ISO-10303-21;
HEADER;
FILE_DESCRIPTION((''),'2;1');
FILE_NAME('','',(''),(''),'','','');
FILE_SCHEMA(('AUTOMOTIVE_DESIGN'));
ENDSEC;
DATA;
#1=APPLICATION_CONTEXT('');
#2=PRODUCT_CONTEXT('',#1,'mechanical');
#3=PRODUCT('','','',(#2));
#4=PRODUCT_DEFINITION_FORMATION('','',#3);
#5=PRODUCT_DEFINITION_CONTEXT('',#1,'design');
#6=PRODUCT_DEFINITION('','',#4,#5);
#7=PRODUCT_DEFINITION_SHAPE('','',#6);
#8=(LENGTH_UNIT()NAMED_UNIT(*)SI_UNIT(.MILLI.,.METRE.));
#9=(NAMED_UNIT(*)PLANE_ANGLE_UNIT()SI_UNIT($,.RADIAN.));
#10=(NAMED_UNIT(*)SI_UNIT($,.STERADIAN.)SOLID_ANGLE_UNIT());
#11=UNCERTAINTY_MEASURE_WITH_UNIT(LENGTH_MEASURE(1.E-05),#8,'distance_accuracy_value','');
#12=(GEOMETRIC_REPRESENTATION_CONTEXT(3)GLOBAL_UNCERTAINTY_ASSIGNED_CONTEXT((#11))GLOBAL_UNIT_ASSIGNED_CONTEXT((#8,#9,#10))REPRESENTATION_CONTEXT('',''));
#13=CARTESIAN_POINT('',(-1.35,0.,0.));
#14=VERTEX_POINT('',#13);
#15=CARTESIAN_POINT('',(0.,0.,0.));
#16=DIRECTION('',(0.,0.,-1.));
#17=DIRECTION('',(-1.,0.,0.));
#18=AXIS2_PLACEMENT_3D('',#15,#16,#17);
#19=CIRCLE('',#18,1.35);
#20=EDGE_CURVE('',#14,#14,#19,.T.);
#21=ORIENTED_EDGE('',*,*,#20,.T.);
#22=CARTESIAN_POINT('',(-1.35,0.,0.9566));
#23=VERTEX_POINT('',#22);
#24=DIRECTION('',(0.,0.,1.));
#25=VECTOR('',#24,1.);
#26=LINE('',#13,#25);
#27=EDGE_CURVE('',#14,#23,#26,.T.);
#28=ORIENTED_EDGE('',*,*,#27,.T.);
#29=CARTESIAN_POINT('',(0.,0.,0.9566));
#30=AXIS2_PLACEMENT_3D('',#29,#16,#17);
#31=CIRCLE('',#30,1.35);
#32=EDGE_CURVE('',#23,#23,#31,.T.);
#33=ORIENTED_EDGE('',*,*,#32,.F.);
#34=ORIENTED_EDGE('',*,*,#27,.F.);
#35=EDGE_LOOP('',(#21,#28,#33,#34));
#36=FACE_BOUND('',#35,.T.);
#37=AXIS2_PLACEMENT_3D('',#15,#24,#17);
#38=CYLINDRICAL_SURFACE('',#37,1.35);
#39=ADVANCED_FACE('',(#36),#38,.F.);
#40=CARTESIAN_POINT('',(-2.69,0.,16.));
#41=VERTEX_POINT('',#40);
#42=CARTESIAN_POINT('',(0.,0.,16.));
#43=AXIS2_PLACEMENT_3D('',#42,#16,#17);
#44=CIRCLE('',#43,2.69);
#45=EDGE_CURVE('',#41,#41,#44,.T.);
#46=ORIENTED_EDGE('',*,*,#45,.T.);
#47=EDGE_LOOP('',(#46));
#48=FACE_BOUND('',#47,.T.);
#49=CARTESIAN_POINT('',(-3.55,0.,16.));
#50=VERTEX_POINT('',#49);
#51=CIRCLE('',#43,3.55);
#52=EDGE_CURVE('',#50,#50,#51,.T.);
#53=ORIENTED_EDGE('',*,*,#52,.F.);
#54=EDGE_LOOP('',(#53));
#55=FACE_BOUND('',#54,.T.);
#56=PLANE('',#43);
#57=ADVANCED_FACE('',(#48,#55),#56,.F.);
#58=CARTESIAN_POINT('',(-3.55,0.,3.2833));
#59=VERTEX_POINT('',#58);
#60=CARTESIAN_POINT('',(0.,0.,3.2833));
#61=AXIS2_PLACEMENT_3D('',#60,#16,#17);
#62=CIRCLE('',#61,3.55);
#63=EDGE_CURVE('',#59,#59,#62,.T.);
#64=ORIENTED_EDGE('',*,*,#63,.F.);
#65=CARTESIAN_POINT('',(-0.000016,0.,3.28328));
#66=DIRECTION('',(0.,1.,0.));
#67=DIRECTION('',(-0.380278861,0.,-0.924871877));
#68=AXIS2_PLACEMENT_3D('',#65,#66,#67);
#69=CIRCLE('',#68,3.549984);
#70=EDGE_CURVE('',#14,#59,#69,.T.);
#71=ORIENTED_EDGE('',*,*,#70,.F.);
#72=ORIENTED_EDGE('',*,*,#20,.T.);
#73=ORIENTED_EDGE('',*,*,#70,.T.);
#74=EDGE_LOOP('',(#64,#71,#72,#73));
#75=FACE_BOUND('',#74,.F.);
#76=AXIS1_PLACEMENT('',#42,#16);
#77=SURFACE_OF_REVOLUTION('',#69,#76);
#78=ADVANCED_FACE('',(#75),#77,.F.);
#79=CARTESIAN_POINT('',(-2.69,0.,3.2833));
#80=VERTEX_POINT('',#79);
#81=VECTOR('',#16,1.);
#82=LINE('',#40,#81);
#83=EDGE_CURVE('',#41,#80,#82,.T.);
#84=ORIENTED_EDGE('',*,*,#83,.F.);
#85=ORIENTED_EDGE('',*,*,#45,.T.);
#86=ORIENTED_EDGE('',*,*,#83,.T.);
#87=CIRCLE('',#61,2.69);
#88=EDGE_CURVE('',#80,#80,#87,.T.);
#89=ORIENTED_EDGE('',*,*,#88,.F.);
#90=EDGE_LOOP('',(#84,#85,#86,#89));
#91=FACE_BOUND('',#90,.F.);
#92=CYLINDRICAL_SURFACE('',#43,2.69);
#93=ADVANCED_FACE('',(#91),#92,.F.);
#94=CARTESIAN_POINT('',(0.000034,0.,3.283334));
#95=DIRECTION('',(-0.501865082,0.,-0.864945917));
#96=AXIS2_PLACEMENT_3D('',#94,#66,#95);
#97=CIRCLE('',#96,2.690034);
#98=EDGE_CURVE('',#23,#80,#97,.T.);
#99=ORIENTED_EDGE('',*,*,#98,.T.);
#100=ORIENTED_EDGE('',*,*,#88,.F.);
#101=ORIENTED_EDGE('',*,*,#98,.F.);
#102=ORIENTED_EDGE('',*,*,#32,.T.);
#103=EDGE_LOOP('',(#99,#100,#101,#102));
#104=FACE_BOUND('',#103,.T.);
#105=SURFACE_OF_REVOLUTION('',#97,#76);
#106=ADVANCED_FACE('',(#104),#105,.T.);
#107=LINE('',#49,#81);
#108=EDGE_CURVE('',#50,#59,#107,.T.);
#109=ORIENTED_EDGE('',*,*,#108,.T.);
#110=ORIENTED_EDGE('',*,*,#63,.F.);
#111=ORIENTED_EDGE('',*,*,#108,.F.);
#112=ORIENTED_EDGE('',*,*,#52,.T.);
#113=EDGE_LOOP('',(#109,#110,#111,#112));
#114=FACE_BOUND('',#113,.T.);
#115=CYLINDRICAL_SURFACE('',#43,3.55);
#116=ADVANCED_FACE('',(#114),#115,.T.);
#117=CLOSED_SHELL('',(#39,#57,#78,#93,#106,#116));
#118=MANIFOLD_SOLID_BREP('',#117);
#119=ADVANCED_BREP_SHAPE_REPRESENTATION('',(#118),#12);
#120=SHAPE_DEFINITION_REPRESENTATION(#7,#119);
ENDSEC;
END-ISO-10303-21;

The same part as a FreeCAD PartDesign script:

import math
import FreeCAD as App
import Part
import Sketcher
from FreeCAD import Vector
Q = App.Units.Quantity

doc = App.newDocument("Part")
body = doc.addObject("PartDesign::Body", "Body")

# Sketch on XZ plane
sketch1 = doc.addObject("Sketcher::SketchObject", "Sketch")
body.addObject(sketch1)
sketch1.AttachmentSupport = (doc.XZ_Plane, [""])
sketch1.MapMode = "FlatFace"
sketch1.addGeometry(Part.LineSegment(Vector(-3.5, 16, 0), Vector(-2.7, 16, 0)), False)
sketch1.addGeometry(Part.LineSegment(Vector(-2.7, 16, 0), Vector(-2.7, 3.3, 0)), False)
sketch1.addGeometry(Part.ArcOfCircle(Part.Circle(Vector(0, 3.3, 0), Vector(0, 0, 1), 2.7), math.radians(180), math.radians(240)), False)
sketch1.addGeometry(Part.LineSegment(Vector(-1.4, 1, 0), Vector(-1.4, 0, 0)), False)
sketch1.addGeometry(Part.ArcOfCircle(Part.Circle(Vector(0, 3.3, 0), Vector(0, 0, 1), 3.6), math.radians(180), math.radians(248)), False)
sketch1.addGeometry(Part.LineSegment(Vector(-3.5, 3.3, 0), Vector(-3.5, 16, 0)), False)
sketch1.addConstraint(Sketcher.Constraint("Coincident", 0, 2, 1, 1))
sketch1.addConstraint(Sketcher.Constraint("Tangent", 1, 2, 2, 1))
sketch1.addConstraint(Sketcher.Constraint("Coincident", 2, 2, 3, 1))
sketch1.addConstraint(Sketcher.Constraint("Coincident", 3, 2, 4, 2))
sketch1.addConstraint(Sketcher.Constraint("Tangent", 4, 1, 5, 1))
sketch1.addConstraint(Sketcher.Constraint("Coincident", 5, 2, 0, 1))
sketch1.addConstraint(Sketcher.Constraint("Horizontal", 0))
sketch1.addConstraint(Sketcher.Constraint("Vertical", 1))
sketch1.addConstraint(Sketcher.Constraint("Vertical", 3))
sketch1.addConstraint(Sketcher.Constraint("Vertical", 5))
sketch1.addConstraint(Sketcher.Constraint("Coincident", 4, 3, 2, 3))
sketch1.addConstraint(Sketcher.Constraint("PointOnObject", 2, 3, -2))
sketch1.addConstraint(Sketcher.Constraint("PointOnObject", 3, 2, -1))
sketch1.addConstraint(Sketcher.Constraint("Radius", 2, Q("2.69 mm")))
sketch1.addConstraint(Sketcher.Constraint("Radius", 4, Q("3.55 mm")))
sketch1.addConstraint(Sketcher.Constraint("DistanceY", -1, 1, 0, 2, Q("16 mm")))
sketch1.addConstraint(Sketcher.Constraint("DistanceX", 2, 2, -1, 1, Q("1.35 mm")))
revolution = doc.addObject("PartDesign::Revolution", "Revolution")
body.addObject(revolution)
revolution.Profile = sketch1
revolution.ReferenceAxis = (sketch1, ["V_Axis"])
revolution.Angle = 360

doc.recompute()
